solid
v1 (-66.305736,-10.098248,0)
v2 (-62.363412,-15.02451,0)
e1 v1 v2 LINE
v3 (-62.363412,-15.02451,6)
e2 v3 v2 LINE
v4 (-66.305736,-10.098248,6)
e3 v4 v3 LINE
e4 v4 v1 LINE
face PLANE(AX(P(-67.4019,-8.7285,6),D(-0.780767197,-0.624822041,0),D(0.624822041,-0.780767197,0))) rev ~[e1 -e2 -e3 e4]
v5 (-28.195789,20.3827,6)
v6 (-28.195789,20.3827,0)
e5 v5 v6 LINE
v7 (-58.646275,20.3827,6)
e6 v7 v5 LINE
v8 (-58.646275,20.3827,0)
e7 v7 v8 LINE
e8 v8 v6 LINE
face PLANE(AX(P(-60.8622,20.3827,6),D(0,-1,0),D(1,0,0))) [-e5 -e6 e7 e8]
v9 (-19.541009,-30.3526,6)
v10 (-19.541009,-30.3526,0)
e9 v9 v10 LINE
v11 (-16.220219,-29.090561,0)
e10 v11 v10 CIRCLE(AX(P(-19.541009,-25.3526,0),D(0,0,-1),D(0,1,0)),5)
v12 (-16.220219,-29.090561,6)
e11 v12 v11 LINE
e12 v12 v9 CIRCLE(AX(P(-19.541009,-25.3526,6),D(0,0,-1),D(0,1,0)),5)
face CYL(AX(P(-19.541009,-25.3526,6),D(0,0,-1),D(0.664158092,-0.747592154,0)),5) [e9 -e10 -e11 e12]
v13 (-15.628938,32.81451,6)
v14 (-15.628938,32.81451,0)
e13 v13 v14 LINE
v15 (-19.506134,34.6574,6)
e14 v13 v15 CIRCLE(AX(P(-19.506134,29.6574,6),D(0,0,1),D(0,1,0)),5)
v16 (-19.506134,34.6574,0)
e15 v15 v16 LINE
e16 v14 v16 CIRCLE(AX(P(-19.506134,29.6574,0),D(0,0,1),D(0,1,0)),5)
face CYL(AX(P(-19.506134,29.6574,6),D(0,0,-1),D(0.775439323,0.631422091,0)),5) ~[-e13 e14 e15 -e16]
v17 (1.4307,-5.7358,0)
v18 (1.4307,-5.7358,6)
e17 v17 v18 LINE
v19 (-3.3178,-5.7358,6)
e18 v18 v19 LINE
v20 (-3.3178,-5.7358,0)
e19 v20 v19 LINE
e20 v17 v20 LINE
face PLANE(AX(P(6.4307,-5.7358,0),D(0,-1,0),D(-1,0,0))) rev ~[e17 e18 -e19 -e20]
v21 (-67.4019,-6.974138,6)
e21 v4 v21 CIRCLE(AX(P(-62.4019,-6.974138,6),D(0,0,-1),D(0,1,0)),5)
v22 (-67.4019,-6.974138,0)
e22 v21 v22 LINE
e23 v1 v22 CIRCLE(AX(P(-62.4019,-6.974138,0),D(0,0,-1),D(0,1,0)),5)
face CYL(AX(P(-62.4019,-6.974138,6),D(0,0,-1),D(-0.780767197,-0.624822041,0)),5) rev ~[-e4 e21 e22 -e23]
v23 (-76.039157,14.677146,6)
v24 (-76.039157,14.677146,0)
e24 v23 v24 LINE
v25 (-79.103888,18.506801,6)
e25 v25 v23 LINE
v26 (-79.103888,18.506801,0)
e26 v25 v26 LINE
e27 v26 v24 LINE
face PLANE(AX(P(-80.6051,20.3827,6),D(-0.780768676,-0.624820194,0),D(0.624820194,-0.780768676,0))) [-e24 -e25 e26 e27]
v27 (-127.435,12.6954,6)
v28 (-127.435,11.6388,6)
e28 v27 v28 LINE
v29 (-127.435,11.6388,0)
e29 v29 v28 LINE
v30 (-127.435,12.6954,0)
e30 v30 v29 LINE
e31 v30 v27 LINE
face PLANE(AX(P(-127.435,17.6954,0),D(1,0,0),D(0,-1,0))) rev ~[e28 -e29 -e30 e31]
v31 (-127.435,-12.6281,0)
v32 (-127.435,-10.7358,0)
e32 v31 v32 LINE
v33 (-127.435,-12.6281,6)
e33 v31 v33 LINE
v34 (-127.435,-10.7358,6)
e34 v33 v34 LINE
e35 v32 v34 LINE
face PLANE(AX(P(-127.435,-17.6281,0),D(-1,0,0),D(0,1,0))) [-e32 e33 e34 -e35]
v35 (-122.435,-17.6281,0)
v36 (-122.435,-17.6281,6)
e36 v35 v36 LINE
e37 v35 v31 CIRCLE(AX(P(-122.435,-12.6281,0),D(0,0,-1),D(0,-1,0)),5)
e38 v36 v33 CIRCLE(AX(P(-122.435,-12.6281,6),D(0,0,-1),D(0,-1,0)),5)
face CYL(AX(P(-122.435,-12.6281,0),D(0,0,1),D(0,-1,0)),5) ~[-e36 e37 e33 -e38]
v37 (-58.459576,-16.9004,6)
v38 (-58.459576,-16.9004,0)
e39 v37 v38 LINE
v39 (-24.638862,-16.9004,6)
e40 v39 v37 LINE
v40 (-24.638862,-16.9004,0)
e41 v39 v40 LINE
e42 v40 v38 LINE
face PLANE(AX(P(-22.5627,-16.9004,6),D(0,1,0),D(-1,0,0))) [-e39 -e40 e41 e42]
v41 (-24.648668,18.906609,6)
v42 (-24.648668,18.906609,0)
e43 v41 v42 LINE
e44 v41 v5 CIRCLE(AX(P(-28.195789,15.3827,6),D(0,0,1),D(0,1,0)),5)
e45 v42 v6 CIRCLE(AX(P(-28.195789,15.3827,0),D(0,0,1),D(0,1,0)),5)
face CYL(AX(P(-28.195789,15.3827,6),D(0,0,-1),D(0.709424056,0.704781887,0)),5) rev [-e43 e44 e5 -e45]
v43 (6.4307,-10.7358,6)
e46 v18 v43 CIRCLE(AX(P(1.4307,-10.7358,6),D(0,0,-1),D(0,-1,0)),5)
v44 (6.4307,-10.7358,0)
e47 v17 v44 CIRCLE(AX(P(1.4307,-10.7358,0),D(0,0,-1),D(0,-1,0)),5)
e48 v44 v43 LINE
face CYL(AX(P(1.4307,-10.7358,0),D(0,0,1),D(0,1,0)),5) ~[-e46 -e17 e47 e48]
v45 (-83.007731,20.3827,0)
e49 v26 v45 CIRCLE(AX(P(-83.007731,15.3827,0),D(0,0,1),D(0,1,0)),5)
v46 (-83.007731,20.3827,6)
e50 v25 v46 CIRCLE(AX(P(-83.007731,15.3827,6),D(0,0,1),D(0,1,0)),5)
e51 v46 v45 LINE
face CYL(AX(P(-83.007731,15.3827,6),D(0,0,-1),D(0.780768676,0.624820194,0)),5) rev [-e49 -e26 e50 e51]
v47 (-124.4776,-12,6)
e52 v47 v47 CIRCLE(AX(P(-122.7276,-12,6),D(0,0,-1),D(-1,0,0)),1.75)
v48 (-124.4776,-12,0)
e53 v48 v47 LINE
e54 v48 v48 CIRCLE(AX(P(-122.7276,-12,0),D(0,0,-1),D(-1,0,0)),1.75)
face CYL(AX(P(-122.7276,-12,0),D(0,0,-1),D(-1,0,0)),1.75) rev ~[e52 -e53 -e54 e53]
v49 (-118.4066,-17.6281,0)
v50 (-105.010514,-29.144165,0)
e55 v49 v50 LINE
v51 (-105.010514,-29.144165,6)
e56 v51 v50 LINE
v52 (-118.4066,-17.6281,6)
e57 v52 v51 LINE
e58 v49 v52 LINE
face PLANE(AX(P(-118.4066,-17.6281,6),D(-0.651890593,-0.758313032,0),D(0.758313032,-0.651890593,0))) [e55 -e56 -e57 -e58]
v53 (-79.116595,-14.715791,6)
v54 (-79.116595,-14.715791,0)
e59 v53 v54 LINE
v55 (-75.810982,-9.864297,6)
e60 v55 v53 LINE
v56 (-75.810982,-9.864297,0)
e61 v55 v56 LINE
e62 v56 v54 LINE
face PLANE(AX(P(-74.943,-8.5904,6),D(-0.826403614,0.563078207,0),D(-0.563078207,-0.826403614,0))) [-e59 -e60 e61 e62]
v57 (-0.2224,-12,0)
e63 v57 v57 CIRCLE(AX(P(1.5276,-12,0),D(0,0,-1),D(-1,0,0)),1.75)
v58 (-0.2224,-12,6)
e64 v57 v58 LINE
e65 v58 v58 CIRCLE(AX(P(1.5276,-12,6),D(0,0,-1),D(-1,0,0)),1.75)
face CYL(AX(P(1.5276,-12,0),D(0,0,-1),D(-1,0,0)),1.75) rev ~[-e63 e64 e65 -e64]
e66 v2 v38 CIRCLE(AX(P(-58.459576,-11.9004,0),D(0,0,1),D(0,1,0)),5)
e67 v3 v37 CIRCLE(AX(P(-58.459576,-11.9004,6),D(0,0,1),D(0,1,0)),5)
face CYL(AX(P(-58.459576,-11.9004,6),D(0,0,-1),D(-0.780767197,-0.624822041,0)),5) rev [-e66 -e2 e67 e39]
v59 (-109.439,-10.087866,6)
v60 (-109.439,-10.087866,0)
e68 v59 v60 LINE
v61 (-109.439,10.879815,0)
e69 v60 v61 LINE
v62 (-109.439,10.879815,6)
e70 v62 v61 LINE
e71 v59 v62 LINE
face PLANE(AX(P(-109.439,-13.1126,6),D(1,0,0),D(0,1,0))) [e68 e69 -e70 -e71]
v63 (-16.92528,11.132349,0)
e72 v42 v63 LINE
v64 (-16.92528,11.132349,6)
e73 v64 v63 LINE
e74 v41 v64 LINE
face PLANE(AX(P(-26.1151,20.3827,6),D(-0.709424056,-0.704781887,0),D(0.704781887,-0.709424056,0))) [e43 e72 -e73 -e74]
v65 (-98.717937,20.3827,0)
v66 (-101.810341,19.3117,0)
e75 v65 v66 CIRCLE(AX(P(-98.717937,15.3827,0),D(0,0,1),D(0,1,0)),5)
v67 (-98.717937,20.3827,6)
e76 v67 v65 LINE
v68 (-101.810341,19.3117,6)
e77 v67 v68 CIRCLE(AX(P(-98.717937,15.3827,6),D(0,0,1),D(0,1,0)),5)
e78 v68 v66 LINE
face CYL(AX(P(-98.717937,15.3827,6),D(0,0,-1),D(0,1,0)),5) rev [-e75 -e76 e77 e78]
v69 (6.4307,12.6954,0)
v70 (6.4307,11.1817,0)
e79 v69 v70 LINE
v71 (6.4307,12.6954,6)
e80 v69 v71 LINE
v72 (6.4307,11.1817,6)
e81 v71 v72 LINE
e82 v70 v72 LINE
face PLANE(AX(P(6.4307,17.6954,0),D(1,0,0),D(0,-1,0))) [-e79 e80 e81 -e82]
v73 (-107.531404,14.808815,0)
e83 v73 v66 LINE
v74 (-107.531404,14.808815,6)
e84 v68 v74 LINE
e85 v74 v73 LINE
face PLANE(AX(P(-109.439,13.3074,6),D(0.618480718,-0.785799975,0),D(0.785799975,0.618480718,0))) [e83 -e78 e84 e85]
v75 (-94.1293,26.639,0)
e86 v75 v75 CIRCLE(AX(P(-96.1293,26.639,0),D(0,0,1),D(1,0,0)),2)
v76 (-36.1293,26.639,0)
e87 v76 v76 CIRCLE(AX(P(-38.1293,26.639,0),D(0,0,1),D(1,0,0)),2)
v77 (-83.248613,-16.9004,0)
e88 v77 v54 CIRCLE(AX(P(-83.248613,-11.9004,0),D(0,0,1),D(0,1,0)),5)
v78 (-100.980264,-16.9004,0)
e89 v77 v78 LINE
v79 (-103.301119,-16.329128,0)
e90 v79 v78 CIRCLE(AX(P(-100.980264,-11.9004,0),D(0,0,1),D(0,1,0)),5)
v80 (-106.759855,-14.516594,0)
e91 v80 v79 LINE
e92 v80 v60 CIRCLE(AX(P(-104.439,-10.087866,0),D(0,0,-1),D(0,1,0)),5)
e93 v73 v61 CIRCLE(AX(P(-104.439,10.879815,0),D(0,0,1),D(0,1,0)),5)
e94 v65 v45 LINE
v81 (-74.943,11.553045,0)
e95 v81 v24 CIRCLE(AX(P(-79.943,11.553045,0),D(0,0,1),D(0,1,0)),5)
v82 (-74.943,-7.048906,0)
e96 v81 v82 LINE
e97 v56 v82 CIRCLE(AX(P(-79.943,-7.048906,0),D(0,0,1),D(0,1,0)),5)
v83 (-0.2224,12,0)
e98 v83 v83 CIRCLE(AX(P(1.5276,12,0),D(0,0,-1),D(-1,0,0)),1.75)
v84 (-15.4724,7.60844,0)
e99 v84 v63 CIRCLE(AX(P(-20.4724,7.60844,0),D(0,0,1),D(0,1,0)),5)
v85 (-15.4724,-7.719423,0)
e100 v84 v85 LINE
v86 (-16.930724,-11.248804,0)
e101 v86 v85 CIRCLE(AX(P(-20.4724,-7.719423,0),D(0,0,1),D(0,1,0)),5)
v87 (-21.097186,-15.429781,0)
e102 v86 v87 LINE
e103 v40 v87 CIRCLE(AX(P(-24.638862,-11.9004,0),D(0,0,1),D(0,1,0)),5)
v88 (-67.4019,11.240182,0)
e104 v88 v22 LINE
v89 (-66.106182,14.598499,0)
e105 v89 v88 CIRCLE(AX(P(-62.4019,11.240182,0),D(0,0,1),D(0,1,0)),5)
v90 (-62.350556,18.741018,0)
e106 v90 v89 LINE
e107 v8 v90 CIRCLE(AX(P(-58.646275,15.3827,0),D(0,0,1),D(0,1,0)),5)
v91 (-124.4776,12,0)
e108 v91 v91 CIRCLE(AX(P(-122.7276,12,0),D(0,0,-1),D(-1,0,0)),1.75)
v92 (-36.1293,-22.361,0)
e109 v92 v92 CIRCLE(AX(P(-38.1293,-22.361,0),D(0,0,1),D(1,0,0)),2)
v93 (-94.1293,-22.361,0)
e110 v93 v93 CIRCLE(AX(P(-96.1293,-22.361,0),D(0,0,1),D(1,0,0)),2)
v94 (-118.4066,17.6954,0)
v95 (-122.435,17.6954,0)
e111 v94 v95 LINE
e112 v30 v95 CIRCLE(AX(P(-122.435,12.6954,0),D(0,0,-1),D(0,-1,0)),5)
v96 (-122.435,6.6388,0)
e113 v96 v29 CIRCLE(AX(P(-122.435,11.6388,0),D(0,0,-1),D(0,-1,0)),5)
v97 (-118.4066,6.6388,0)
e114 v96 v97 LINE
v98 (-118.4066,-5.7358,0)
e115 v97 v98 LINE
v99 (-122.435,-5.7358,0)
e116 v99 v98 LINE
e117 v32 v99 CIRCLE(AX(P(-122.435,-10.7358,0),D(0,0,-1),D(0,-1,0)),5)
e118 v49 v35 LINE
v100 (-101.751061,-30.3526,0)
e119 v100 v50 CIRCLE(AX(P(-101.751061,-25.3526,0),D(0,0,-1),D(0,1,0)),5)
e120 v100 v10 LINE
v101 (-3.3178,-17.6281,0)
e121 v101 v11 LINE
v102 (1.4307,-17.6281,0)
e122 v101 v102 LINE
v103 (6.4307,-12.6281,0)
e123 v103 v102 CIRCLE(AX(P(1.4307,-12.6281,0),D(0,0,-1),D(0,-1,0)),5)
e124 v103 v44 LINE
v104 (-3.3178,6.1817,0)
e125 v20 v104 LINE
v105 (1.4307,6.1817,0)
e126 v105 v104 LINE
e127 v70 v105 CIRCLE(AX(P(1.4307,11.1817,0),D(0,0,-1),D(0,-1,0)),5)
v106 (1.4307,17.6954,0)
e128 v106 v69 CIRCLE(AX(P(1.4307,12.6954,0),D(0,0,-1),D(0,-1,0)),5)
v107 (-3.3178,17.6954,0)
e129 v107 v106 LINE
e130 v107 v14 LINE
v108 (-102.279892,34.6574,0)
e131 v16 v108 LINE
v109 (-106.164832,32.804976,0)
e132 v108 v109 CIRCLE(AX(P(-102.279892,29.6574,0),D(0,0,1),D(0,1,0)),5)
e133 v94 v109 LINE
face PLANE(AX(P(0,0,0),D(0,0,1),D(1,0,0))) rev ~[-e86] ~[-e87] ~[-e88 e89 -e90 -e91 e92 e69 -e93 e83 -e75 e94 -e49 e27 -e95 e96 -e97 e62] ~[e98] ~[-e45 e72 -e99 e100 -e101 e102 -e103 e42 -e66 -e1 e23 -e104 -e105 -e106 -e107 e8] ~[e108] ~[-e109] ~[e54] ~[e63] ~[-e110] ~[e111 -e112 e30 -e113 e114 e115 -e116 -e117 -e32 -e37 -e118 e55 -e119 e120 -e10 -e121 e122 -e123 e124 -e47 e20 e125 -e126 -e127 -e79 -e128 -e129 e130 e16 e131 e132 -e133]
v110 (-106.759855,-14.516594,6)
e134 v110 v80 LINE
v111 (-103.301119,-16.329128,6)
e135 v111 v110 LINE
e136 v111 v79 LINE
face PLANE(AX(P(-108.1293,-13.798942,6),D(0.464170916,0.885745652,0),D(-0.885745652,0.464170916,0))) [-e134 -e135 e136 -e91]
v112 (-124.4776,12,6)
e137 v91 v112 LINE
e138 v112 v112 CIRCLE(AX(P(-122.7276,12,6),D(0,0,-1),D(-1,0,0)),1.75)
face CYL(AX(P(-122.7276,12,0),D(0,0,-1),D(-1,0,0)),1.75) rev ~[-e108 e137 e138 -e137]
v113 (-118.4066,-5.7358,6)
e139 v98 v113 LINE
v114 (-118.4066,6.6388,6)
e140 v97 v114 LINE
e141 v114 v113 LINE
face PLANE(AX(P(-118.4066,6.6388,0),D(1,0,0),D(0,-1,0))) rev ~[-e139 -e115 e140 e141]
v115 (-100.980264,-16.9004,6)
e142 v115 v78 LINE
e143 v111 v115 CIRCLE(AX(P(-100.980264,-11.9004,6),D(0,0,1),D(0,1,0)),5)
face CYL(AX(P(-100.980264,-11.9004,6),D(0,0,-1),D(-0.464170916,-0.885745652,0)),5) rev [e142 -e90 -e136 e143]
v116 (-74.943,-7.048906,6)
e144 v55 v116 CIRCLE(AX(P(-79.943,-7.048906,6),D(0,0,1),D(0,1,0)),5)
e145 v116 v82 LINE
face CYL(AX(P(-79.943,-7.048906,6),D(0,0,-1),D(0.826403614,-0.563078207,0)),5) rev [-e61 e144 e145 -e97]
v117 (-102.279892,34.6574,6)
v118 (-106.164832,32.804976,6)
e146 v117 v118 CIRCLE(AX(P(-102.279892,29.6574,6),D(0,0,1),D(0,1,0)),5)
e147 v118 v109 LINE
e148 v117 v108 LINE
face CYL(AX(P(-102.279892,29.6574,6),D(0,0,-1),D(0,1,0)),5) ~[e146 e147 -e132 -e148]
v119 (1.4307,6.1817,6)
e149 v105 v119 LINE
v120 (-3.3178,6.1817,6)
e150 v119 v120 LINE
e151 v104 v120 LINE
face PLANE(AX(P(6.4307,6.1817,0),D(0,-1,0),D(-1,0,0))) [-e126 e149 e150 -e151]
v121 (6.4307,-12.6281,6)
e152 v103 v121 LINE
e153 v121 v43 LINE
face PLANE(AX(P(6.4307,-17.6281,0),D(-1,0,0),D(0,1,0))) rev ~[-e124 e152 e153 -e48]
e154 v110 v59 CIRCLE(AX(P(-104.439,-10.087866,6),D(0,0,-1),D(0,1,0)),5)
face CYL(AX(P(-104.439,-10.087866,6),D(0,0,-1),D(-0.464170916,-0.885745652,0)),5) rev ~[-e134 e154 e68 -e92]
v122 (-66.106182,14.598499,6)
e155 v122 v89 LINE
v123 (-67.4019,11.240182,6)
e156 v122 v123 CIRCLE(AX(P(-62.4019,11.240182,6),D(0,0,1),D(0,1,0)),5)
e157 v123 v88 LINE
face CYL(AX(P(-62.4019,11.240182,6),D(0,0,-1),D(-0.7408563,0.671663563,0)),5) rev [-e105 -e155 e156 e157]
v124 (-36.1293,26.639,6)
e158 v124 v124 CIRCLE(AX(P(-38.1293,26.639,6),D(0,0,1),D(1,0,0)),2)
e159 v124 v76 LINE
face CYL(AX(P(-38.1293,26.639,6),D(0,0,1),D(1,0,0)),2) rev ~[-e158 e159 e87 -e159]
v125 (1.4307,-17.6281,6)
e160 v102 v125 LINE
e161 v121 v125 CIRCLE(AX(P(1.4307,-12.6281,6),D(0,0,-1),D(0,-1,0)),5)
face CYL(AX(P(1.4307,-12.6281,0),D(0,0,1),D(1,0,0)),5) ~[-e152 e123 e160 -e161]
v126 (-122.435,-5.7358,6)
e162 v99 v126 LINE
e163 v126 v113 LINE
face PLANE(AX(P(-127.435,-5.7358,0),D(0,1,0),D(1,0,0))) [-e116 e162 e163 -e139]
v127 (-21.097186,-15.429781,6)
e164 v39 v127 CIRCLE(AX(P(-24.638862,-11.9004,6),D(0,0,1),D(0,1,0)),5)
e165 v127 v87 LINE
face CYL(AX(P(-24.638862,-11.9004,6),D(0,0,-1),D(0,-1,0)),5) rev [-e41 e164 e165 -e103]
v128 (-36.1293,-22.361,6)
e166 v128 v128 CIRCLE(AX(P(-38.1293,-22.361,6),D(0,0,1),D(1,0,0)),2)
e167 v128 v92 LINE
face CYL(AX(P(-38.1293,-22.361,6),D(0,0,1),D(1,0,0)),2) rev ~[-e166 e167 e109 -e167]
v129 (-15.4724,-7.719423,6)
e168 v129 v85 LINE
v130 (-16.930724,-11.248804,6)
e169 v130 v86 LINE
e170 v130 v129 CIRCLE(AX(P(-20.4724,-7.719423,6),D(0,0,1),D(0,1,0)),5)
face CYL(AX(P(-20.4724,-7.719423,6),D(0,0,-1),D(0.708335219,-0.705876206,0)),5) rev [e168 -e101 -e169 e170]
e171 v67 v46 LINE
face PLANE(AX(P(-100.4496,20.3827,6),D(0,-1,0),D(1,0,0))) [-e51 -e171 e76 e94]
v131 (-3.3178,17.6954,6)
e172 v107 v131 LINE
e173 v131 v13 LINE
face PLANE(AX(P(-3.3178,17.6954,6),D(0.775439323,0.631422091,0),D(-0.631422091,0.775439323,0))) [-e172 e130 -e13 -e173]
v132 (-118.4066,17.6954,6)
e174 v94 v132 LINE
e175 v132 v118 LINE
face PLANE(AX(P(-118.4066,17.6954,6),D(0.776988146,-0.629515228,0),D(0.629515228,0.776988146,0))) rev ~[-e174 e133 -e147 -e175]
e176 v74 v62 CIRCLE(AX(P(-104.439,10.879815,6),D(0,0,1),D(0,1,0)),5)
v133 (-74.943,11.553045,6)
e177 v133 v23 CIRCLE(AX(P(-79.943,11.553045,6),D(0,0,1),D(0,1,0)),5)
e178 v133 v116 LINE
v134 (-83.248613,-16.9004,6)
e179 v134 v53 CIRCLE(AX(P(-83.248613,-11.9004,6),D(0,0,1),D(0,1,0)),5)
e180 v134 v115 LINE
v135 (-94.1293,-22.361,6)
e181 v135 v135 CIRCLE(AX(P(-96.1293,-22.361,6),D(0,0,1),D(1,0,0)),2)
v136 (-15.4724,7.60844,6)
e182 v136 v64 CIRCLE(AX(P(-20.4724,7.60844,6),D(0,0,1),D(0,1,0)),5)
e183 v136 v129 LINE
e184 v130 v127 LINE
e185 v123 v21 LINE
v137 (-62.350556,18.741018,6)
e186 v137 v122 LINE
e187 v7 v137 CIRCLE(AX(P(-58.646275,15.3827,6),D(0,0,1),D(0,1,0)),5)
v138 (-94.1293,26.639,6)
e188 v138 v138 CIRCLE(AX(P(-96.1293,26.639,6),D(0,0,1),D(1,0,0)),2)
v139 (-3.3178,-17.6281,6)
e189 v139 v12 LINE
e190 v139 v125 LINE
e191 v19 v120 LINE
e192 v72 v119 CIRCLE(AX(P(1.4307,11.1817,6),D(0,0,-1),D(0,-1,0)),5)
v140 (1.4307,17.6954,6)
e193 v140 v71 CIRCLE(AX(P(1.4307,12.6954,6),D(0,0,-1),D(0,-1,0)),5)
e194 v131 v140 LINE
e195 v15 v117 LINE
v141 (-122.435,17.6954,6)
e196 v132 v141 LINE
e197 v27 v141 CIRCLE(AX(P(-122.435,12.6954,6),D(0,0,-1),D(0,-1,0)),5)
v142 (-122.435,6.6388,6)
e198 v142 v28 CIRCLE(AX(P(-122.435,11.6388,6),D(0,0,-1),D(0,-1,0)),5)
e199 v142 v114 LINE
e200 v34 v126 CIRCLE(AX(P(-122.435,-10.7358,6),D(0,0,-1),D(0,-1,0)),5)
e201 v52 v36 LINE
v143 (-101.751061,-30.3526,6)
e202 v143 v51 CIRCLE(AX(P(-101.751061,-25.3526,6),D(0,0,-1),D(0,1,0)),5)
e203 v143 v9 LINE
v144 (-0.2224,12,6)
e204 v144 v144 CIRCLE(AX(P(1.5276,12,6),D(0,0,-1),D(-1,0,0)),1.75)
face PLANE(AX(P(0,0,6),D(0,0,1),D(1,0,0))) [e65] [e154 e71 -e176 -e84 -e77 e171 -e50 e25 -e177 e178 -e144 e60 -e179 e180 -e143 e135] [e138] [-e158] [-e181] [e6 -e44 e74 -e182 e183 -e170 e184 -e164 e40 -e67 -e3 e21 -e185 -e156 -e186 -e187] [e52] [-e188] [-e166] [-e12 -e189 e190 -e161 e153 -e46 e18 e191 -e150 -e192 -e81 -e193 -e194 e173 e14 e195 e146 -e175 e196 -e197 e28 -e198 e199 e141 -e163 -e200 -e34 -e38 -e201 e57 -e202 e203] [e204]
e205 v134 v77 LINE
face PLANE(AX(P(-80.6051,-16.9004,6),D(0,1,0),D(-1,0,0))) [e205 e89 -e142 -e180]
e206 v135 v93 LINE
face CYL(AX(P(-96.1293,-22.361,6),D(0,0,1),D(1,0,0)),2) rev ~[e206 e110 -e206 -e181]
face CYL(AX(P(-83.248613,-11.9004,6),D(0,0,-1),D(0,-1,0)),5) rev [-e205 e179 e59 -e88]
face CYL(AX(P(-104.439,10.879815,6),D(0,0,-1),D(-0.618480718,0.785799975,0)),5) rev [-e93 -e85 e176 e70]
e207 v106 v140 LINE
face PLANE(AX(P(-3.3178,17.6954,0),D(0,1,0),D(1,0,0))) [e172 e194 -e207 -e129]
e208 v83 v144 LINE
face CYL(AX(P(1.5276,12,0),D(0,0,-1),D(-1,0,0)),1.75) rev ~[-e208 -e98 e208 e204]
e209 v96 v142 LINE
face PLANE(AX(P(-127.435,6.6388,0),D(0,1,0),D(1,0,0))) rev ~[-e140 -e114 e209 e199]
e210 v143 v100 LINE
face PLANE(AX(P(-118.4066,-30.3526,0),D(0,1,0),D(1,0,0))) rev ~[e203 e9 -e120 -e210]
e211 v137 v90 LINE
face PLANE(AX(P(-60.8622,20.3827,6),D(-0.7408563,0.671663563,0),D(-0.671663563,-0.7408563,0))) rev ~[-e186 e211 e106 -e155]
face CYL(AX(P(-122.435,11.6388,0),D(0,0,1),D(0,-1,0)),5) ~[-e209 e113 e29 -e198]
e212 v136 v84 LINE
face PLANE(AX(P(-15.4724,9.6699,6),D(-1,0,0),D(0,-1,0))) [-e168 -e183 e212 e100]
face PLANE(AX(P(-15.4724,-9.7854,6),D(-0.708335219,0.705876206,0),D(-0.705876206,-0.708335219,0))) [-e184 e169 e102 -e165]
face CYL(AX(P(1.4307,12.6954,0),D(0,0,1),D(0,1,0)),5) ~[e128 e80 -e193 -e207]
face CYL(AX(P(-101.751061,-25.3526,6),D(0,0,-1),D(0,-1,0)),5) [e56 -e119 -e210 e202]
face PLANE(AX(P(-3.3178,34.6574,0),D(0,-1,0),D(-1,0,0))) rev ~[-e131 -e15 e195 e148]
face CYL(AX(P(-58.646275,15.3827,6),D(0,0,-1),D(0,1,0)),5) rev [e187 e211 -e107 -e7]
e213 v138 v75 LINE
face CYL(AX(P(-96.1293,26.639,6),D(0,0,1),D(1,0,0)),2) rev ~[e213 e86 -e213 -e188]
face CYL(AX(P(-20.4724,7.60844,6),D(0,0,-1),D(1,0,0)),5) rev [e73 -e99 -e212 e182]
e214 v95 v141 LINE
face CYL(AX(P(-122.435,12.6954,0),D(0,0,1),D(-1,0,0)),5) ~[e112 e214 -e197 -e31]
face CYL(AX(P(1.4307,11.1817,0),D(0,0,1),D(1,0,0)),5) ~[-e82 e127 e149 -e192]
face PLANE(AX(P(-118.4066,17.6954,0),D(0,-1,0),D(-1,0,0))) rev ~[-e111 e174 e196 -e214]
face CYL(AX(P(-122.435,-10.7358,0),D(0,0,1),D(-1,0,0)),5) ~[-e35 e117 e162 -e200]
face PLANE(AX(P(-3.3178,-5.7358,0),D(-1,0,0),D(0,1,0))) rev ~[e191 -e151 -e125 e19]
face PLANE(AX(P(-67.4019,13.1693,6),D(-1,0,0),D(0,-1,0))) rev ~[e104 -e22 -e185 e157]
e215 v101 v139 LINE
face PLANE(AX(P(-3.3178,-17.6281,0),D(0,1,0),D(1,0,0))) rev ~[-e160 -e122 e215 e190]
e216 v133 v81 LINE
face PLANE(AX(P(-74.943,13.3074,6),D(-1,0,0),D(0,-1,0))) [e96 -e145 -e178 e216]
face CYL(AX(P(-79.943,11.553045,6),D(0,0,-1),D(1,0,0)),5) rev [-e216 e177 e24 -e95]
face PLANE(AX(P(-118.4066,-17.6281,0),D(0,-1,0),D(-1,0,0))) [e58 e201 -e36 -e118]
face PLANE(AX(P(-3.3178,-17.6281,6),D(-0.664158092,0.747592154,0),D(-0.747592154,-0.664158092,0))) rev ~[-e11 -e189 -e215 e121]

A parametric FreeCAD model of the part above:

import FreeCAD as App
import Part
import Sketcher

V = App.Vector
Q = App.Units.Quantity


def edges_at(feature, points):
    """Names of the edges that pass closest to the given points."""
    edges = feature.Shape.Edges
    near = lambda p: min(range(len(edges)), key=lambda i: edges[i].distToShape(Part.Vertex(*p))[0])
    return sorted({f"Edge{near(p) + 1}" for p in points})

doc = App.newDocument("Part")
body = doc.addObject("PartDesign::Body", "Body")

# Sketch on XY plane
sketch1 = doc.addObject("Sketcher::SketchObject", "Sketch")
body.addObject(sketch1)
sketch1.AttachmentSupport = (doc.XY_Plane, [""])
sketch1.MapMode = "FlatFace"
sketch1.addGeometry(Part.LineSegment(V(-3, 18, 0), V(-3, 35, 0)), False)
sketch1.addGeometry(Part.LineSegment(V(-3, 35, 0), V(-118, 35, 0)), False)
sketch1.addGeometry(Part.LineSegment(V(-118, 35, 0), V(-118, 18, 0)), False)
sketch1.addGeometry(Part.LineSegment(V(-118, 18, 0), V(-127, 18, 0)), False)
sketch1.addGeometry(Part.LineSegment(V(-127, 18, 0), V(-127, 7, 0)), False)
sketch1.addGeometry(Part.LineSegment(V(-127, 7, 0), V(-118, 7, 0)), False)
sketch1.addGeometry(Part.LineSegment(V(-118, 7, 0), V(-118, -6, 0)), False)
sketch1.addGeometry(Part.LineSegment(V(-118, -6, 0), V(-127, -6, 0)), False)
sketch1.addGeometry(Part.LineSegment(V(-127, -6, 0), V(-127, -18, 0)), False)
sketch1.addGeometry(Part.LineSegment(V(-127, -18, 0), V(-118, -18, 0)), False)
sketch1.addGeometry(Part.LineSegment(V(-118, -18, 0), V(-118, -30, 0)), False)
sketch1.addGeometry(Part.LineSegment(V(-118, -30, 0), V(-3, -30, 0)), False)
sketch1.addGeometry(Part.LineSegment(V(-3, -30, 0), V(-3, -18, 0)), False)
sketch1.addGeometry(Part.LineSegment(V(-3, -18, 0), V(6, -18, 0)), False)
sketch1.addGeometry(Part.LineSegment(V(6, -18, 0), V(6, -6, 0)), False)
sketch1.addGeometry(Part.LineSegment(V(6, -6, 0), V(-3, -6, 0)), False)
sketch1.addGeometry(Part.LineSegment(V(-3, -6, 0), V(-3, 6, 0)), False)
sketch1.addGeometry(Part.LineSegment(V(-3, 6, 0), V(6, 6, 0)), False)
sketch1.addGeometry(Part.LineSegment(V(6, 6, 0), V(6, 18, 0)), False)
sketch1.addGeometry(Part.LineSegment(V(6, 18, 0), V(-3, 18, 0)), False)
sketch1.addConstraint(Sketcher.Constraint("Coincident", 0, 2, 1, 1))
sketch1.addConstraint(Sketcher.Constraint("Coincident", 1, 2, 2, 1))
sketch1.addConstraint(Sketcher.Constraint("Coincident", 2, 2, 3, 1))
sketch1.addConstraint(Sketcher.Constraint("Coincident", 3, 2, 4, 1))
sketch1.addConstraint(Sketcher.Constraint("Coincident", 4, 2, 5, 1))
sketch1.addConstraint(Sketcher.Constraint("Coincident", 5, 2, 6, 1))
sketch1.addConstraint(Sketcher.Constraint("Coincident", 6, 2, 7, 1))
sketch1.addConstraint(Sketcher.Constraint("Coincident", 7, 2, 8, 1))
sketch1.addConstraint(Sketcher.Constraint("Coincident", 8, 2, 9, 1))
sketch1.addConstraint(Sketcher.Constraint("Coincident", 9, 2, 10, 1))
sketch1.addConstraint(Sketcher.Constraint("Coincident", 10, 2, 11, 1))
sketch1.addConstraint(Sketcher.Constraint("Coincident", 11, 2, 12, 1))
sketch1.addConstraint(Sketcher.Constraint("Coincident", 12, 2, 13, 1))
sketch1.addConstraint(Sketcher.Constraint("Coincident", 13, 2, 14, 1))
sketch1.addConstraint(Sketcher.Constraint("Coincident", 14, 2, 15, 1))
sketch1.addConstraint(Sketcher.Constraint("Coincident", 15, 2, 16, 1))
sketch1.addConstraint(Sketcher.Constraint("Coincident", 16, 2, 17, 1))
sketch1.addConstraint(Sketcher.Constraint("Coincident", 17, 2, 18, 1))
sketch1.addConstraint(Sketcher.Constraint("Coincident", 18, 2, 19, 1))
sketch1.addConstraint(Sketcher.Constraint("Coincident", 19, 2, 0, 1))
sketch1.addConstraint(Sketcher.Constraint("Vertical", 0))
sketch1.addConstraint(Sketcher.Constraint("Horizontal", 1))
sketch1.addConstraint(Sketcher.Constraint("Vertical", 2))
sketch1.addConstraint(Sketcher.Constraint("Horizontal", 3))
sketch1.addConstraint(Sketcher.Constraint("Vertical", 4))
sketch1.addConstraint(Sketcher.Constraint("Horizontal", 5))
sketch1.addConstraint(Sketcher.Constraint("Vertical", 6))
sketch1.addConstraint(Sketcher.Constraint("Horizontal", 7))
sketch1.addConstraint(Sketcher.Constraint("Vertical", 8))
sketch1.addConstraint(Sketcher.Constraint("Horizontal", 9))
sketch1.addConstraint(Sketcher.Constraint("Vertical", 10))
sketch1.addConstraint(Sketcher.Constraint("Horizontal", 11))
sketch1.addConstraint(Sketcher.Constraint("Vertical", 12))
sketch1.addConstraint(Sketcher.Constraint("Horizontal", 13))
sketch1.addConstraint(Sketcher.Constraint("Vertical", 14))
sketch1.addConstraint(Sketcher.Constraint("Horizontal", 15))
sketch1.addConstraint(Sketcher.Constraint("Vertical", 16))
sketch1.addConstraint(Sketcher.Constraint("Horizontal", 17))
sketch1.addConstraint(Sketcher.Constraint("Vertical", 18))
sketch1.addConstraint(Sketcher.Constraint("Horizontal", 19))
sketch1.addConstraint(Sketcher.Constraint("Horizontal", 9, 2, 12, 2))
sketch1.addConstraint(Sketcher.Constraint("Horizontal", 7, 2, 14, 2))
sketch1.addConstraint(Sketcher.Constraint("Horizontal", 3, 2, 18, 2))
sketch1.addConstraint(Sketcher.Constraint("Vertical", 2, 2, 5, 2))
sketch1.addConstraint(Sketcher.Constraint("Vertical", 4, 2, 7, 2))
sketch1.addConstraint(Sketcher.Constraint("Vertical", 6, 2, 9, 2))
sketch1.addConstraint(Sketcher.Constraint("Vertical", 0, 2, 11, 2))
sketch1.addConstraint(Sketcher.Constraint("Vertical", 12, 2, 15, 2))
sketch1.addConstraint(Sketcher.Constraint("Vertical", 14, 2, 17, 2))
sketch1.addConstraint(Sketcher.Constraint("DistanceY", 0, 1, 0, 2, 16.962))
sketch1.addConstraint(Sketcher.Constraint("DistanceY", 11, 2, 0, 2, 65.01))
sketch1.addConstraint(Sketcher.Constraint("DistanceX", 1, 2, 1, 1, 115.0888))
sketch1.addConstraint(Sketcher.Constraint("DistanceX", 3, 2, 3, 1, 9.0284))
sketch1.addConstraint(Sketcher.Constraint("DistanceX", 13, 1, 13, 2, 9.7485))
sketch1.addConstraint(Sketcher.Constraint("DistanceY", 4, 2, 4, 1, 11.0566))
sketch1.addConstraint(Sketcher.Constraint("DistanceY", 6, 2, 6, 1, 12.3746))
sketch1.addConstraint(Sketcher.Constraint("DistanceY", 8, 2, 8, 1, 11.8923))
sketch1.addConstraint(Sketcher.Constraint("DistanceY", 16, 1, 16, 2, 11.9175))
sketch1.addConstraint(Sketcher.Constraint("DistanceX", 3, 2, -1, 1, 127.435))
sketch1.addConstraint(Sketcher.Constraint("DistanceY", 8, 2, -1, 1, 17.628))
pad1 = doc.addObject("PartDesign::Pad", "Pad")
body.addObject(pad1)
pad1.Profile = sketch1
pad1.Length = 6

# Sketch on XY plane
sketch2 = doc.addObject("Sketcher::SketchObject", "Sketch001")
body.addObject(sketch2)
sketch2.AttachmentSupport = (doc.XY_Plane, [""])
sketch2.MapMode = "FlatFace"
sketch2.AttachmentOffset = App.Placement(V(0, 0, 6), App.Rotation())
sketch2.addGeometry(Part.Circle(V(-38.1, 26.6, 0), V(0, 0, 1), 2), False)
sketch2.addGeometry(Part.Circle(V(-38.1, -22.4, 0), V(0, 0, 1), 2), False)
sketch2.addGeometry(Part.Circle(V(-96.1, -22.4, 0), V(0, 0, 1), 2), False)
sketch2.addGeometry(Part.Circle(V(-96.1, 26.6, 0), V(0, 0, 1), 2), False)
sketch2.addConstraint(Sketcher.Constraint("Equal", 0, 1))
sketch2.addConstraint(Sketcher.Constraint("Equal", 1, 2))
sketch2.addConstraint(Sketcher.Constraint("Equal", 2, 3))
sketch2.addConstraint(Sketcher.Constraint("Horizontal", 1, 3, 2, 3))
sketch2.addConstraint(Sketcher.Constraint("Horizontal", 0, 3, 3, 3))
sketch2.addConstraint(Sketcher.Constraint("Vertical", 0, 3, 1, 3))
sketch2.addConstraint(Sketcher.Constraint("Vertical", 2, 3, 3, 3))
sketch2.addConstraint(Sketcher.Constraint("Diameter", 0, 4.0))
sketch2.addConstraint(Sketcher.Constraint("DistanceY", 1, 3, 0, 3, 49.0))
sketch2.addConstraint(Sketcher.Constraint("DistanceX", 2, 3, 1, 3, 58.0))
sketch2.addConstraint(Sketcher.Constraint("DistanceY", -1, 1, 0, 3, 26.639))
sketch2.addConstraint(Sketcher.Constraint("DistanceX", 0, 3, -1, 1, 38.1293))
pocket1 = doc.addObject("PartDesign::Pocket", "Pocket")
body.addObject(pocket1)
pocket1.Profile = sketch2
pocket1.Length = 6

# Sketch on XY plane
sketch3 = doc.addObject("Sketcher::SketchObject", "Sketch002")
body.addObject(sketch3)
sketch3.AttachmentSupport = (doc.XY_Plane, [""])
sketch3.MapMode = "FlatFace"
sketch3.addGeometry(Part.Circle(V(1.5, 12, 0), V(0, 0, 1), 1.8), False)
sketch3.addGeometry(Part.Circle(V(1.5, -12, 0), V(0, 0, 1), 1.8), False)
sketch3.addGeometry(Part.Circle(V(-122.7, -12, 0), V(0, 0, 1), 1.8), False)
sketch3.addGeometry(Part.Circle(V(-122.7, 12, 0), V(0, 0, 1), 1.8), False)
sketch3.addConstraint(Sketcher.Constraint("Equal", 0, 1))
sketch3.addConstraint(Sketcher.Constraint("Equal", 1, 2))
sketch3.addConstraint(Sketcher.Constraint("Equal", 2, 3))
sketch3.addConstraint(Sketcher.Constraint("Symmetric", 0, 3, 1, 3, -1))
sketch3.addConstraint(Sketcher.Constraint("Symmetric", 2, 3, 3, 3, -1))
sketch3.addConstraint(Sketcher.Constraint("Horizontal", 1, 3, 2, 3))
sketch3.addConstraint(Sketcher.Constraint("Diameter", 0, 3.5))
sketch3.addConstraint(Sketcher.Constraint("DistanceY", -1, 1, 0, 3, 12.0))
sketch3.addConstraint(Sketcher.Constraint("DistanceX", -1, 1, 0, 3, 1.5276))
sketch3.addConstraint(Sketcher.Constraint("DistanceX", 2, 3, -1, 1, 122.7276))
pocket2 = doc.addObject("PartDesign::Pocket", "Pocket001")
body.addObject(pocket2)
pocket2.Profile = sketch3
pocket2.Length = 6
pocket2.Reversed = True

# Sketch on XY plane
sketch4 = doc.addObject("Sketcher::SketchObject", "Sketch003")
body.addObject(sketch4)
sketch4.AttachmentSupport = (doc.XY_Plane, [""])
sketch4.MapMode = "FlatFace"
sketch4.AttachmentOffset = App.Placement(V(0, 0, 6), App.Rotation())
sketch4.addGeometry(Part.LineSegment(V(-3, -18, 0), V(-18, -30, 0)), False)
sketch4.addGeometry(Part.LineSegment(V(-18, -30, 0), V(-3, -30, 0)), False)
sketch4.addGeometry(Part.LineSegment(V(-3, -30, 0), V(-3, -18, 0)), False)
sketch4.addGeometry(Part.LineSegment(V(-118, -30, 0), V(-104, -30, 0)), False)
sketch4.addGeometry(Part.LineSegment(V(-104, -30, 0), V(-118, -18, 0)), False)
sketch4.addGeometry(Part.LineSegment(V(-118, -18, 0), V(-118, -30, 0)), False)
sketch4.addGeometry(Part.LineSegment(V(-109, -13, 0), V(-102, -17, 0)), False)
sketch4.addGeometry(Part.LineSegment(V(-102, -17, 0), V(-81, -17, 0)), False)
sketch4.addGeometry(Part.LineSegment(V(-81, -17, 0), V(-75, -9, 0)), False)
sketch4.addGeometry(Part.LineSegment(V(-75, -9, 0), V(-75, 13, 0)), False)
sketch4.addGeometry(Part.LineSegment(V(-75, 13, 0), V(-81, 20, 0)), False)
sketch4.addGeometry(Part.LineSegment(V(-81, 20, 0), V(-100, 20, 0)), False)
sketch4.addGeometry(Part.LineSegment(V(-100, 20, 0), V(-109, 13, 0)), False)
sketch4.addGeometry(Part.LineSegment(V(-109, 13, 0), V(-109, -13, 0)), False)
sketch4.addGeometry(Part.LineSegment(V(-67, -9, 0), V(-61, -17, 0)), False)
sketch4.addGeometry(Part.LineSegment(V(-61, -17, 0), V(-23, -17, 0)), False)
sketch4.addGeometry(Part.LineSegment(V(-23, -17, 0), V(-15, -10, 0)), False)
sketch4.addGeometry(Part.LineSegment(V(-15, -10, 0), V(-15, 10, 0)), False)
sketch4.addGeometry(Part.LineSegment(V(-15, 10, 0), V(-26, 20, 0)), False)
sketch4.addGeometry(Part.LineSegment(V(-26, 20, 0), V(-61, 20, 0)), False)
sketch4.addGeometry(Part.LineSegment(V(-61, 20, 0), V(-67, 13, 0)), False)
sketch4.addGeometry(Part.LineSegment(V(-67, 13, 0), V(-67, -9, 0)), False)
sketch4.addGeometry(Part.LineSegment(V(-105, 35, 0), V(-118, 35, 0)), False)
sketch4.addGeometry(Part.LineSegment(V(-118, 35, 0), V(-118, 18, 0)), False)
sketch4.addGeometry(Part.LineSegment(V(-118, 18, 0), V(-105, 35, 0)), False)
sketch4.addGeometry(Part.LineSegment(V(-3, 35, 0), V(-17, 35, 0)), False)
sketch4.addGeometry(Part.LineSegment(V(-17, 35, 0), V(-3, 18, 0)), False)
sketch4.addGeometry(Part.LineSegment(V(-3, 18, 0), V(-3, 35, 0)), False)
sketch4.addConstraint(Sketcher.Constraint("Coincident", 0, 2, 1, 1))
sketch4.addConstraint(Sketcher.Constraint("Coincident", 1, 2, 2, 1))
sketch4.addConstraint(Sketcher.Constraint("Coincident", 2, 2, 0, 1))
sketch4.addConstraint(Sketcher.Constraint("Coincident", 3, 2, 4, 1))
sketch4.addConstraint(Sketcher.Constraint("Coincident", 4, 2, 5, 1))
sketch4.addConstraint(Sketcher.Constraint("Coincident", 5, 2, 3, 1))
sketch4.addConstraint(Sketcher.Constraint("Coincident", 6, 2, 7, 1))
sketch4.addConstraint(Sketcher.Constraint("Coincident", 7, 2, 8, 1))
sketch4.addConstraint(Sketcher.Constraint("Coincident", 8, 2, 9, 1))
sketch4.addConstraint(Sketcher.Constraint("Coincident", 9, 2, 10, 1))
sketch4.addConstraint(Sketcher.Constraint("Coincident", 10, 2, 11, 1))
sketch4.addConstraint(Sketcher.Constraint("Coincident", 11, 2, 12, 1))
sketch4.addConstraint(Sketcher.Constraint("Coincident", 12, 2, 13, 1))
sketch4.addConstraint(Sketcher.Constraint("Coincident", 13, 2, 6, 1))
sketch4.addConstraint(Sketcher.Constraint("Coincident", 14, 2, 15, 1))
sketch4.addConstraint(Sketcher.Constraint("Coincident", 15, 2, 16, 1))
sketch4.addConstraint(Sketcher.Constraint("Coincident", 16, 2, 17, 1))
sketch4.addConstraint(Sketcher.Constraint("Coincident", 17, 2, 18, 1))
sketch4.addConstraint(Sketcher.Constraint("Coincident", 18, 2, 19, 1))
sketch4.addConstraint(Sketcher.Constraint("Coincident", 19, 2, 20, 1))
sketch4.addConstraint(Sketcher.Constraint("Coincident", 20, 2, 21, 1))
sketch4.addConstraint(Sketcher.Constraint("Coincident", 21, 2, 14, 1))
sketch4.addConstraint(Sketcher.Constraint("Coincident", 22, 2, 23, 1))
sketch4.addConstraint(Sketcher.Constraint("Coincident", 23, 2, 24, 1))
sketch4.addConstraint(Sketcher.Constraint("Coincident", 24, 2, 22, 1))
sketch4.addConstraint(Sketcher.Constraint("Coincident", 25, 2, 26, 1))
sketch4.addConstraint(Sketcher.Constraint("Coincident", 26, 2, 27, 1))
sketch4.addConstraint(Sketcher.Constraint("Coincident", 27, 2, 25, 1))
sketch4.addConstraint(Sketcher.Constraint("Horizontal", 1))
sketch4.addConstraint(Sketcher.Constraint("Vertical", 2))
sketch4.addConstraint(Sketcher.Constraint("Horizontal", 3))
sketch4.addConstraint(Sketcher.Constraint("Vertical", 5))
sketch4.addConstraint(Sketcher.Constraint("Horizontal", 7))
sketch4.addConstraint(Sketcher.Constraint("Vertical", 9))
sketch4.addConstraint(Sketcher.Constraint("Horizontal", 11))
sketch4.addConstraint(Sketcher.Constraint("Vertical", 13))
sketch4.addConstraint(Sketcher.Constraint("Horizontal", 15))
sketch4.addConstraint(Sketcher.Constraint("Vertical", 17))
sketch4.addConstraint(Sketcher.Constraint("Horizontal", 19))
sketch4.addConstraint(Sketcher.Constraint("Vertical", 21))
sketch4.addConstraint(Sketcher.Constraint("Horizontal", 22))
sketch4.addConstraint(Sketcher.Constraint("Vertical", 23))
sketch4.addConstraint(Sketcher.Constraint("Horizontal", 25))
sketch4.addConstraint(Sketcher.Constraint("Vertical", 27))
sketch4.addConstraint(Sketcher.Constraint("Parallel", 10, 14))
sketch4.addConstraint(Sketcher.Constraint("Horizontal", 1, 2, 3, 2))
sketch4.addConstraint(Sketcher.Constraint("Horizontal", 2, 2, 4, 2))
sketch4.addConstraint(Sketcher.Constraint("Horizontal", 9, 2, 12, 2))
sketch4.addConstraint(Sketcher.Constraint("Horizontal", 7, 2, 14, 2))
sketch4.addConstraint(Sketcher.Constraint("Horizontal", 11, 2, 18, 2))
sketch4.addConstraint(Sketcher.Constraint("Horizontal", 24, 2, 25, 2))
sketch4.addConstraint(Sketcher.Constraint("Horizontal", 23, 2, 26, 2))
sketch4.addConstraint(Sketcher.Constraint("Vertical", 7, 2, 10, 2))
sketch4.addConstraint(Sketcher.Constraint("Vertical", 14, 2, 19, 2))
sketch4.addConstraint(Sketcher.Constraint("Vertical", 5, 2, 22, 2))
sketch4.addConstraint(Sketcher.Constraint("Vertical", 2, 2, 26, 2))
sketch4.addConstraint(Sketcher.Constraint("Equal", 9, 21))
sketch4.addConstraint(Sketcher.Constraint("Angle", 16, Q("45.0996 deg")))
sketch4.addConstraint(Sketcher.Constraint("DistanceY", 13, 2, 13, 1, 26.42))
sketch4.addConstraint(Sketcher.Constraint("Angle", 8, Q("55.731 deg")))
sketch4.addConstraint(Sketcher.Constraint("Angle", 10, Q("128.669 deg")))
sketch4.addConstraint(Sketcher.Constraint("DistanceX", 1, 1, 1, 2, 14.323))
sketch4.addConstraint(Sketcher.Constraint("DistanceX", 7, 1, 7, 2, 21.606))
sketch4.addConstraint(Sketcher.Constraint("DistanceX", 19, 2, 19, 1, 34.747))
sketch4.addConstraint(Sketcher.Constraint("DistanceY", 23, 2, 23, 1, 16.962))
sketch4.addConstraint(Sketcher.Constraint("DistanceY", -1, 1, 17, 2, 9.67))
sketch4.addConstraint(Sketcher.Constraint("DistanceY", 7, 2, 8, 2, 8.31))
sketch4.addConstraint(Sketcher.Constraint("DistanceY", 3, 2, 9, 2, 43.66))
sketch4.addConstraint(Sketcher.Constraint("DistanceY", 12, 2, 22, 2, 21.35))
sketch4.addConstraint(Sketcher.Constraint("Distance", 26, 21.874))
sketch4.addConstraint(Sketcher.Constraint("DistanceX", 3, 1, 3, 2, 14.8018))
sketch4.addConstraint(Sketcher.Constraint("DistanceX", 11, 2, 11, 1, 19.8445))
sketch4.addConstraint(Sketcher.Constraint("DistanceX", 15, 1, 15, 2, 38.2995))
sketch4.addConstraint(Sketcher.Constraint("DistanceX", 22, 2, 22, 1, 13.7426))
sketch4.addConstraint(Sketcher.Constraint("DistanceY", 2, 1, 2, 2, 12.7245))
sketch4.addConstraint(Sketcher.Constraint("DistanceY", 9, 1, 9, 2, 21.8978))
sketch4.addConstraint(Sketcher.Constraint("DistanceY", 17, 1, 17, 2, 19.4553))
sketch4.addConstraint(Sketcher.Constraint("DistanceY", 2, 2, -1, 1, 17.628))
sketch4.addConstraint(Sketcher.Constraint("DistanceX", 6, 2, -1, 1, 102.211))
sketch4.addConstraint(Sketcher.Constraint("DistanceX", 12, 2, -1, 1, 109.439))
sketch4.addConstraint(Sketcher.Constraint("DistanceX", 18, 2, -1, 1, 26.115))
sketch4.addConstraint(Sketcher.Constraint("DistanceX", 20, 2, -1, 1, 67.402))
sketch4.addConstraint(Sketcher.Constraint("DistanceX", 24, 2, -1, 1, 104.664))
sketch4.addConstraint(Sketcher.Constraint("DistanceX", 3, 2, 0, 2, 85.964))
pocket3 = doc.addObject("PartDesign::Pocket", "Pocket002")
body.addObject(pocket3)
pocket3.Profile = sketch4
pocket3.Length = 6
doc.recompute()

fillet = doc.addObject("PartDesign::Fillet", "Fillet")
body.addObject(fillet)
fillet.Base = (pocket3, edges_at(pocket3, [
    (-127.435, 17.695, 3),
    (-127.435, 6.639, 3),
    (-127.435, -5.736, 3),
    (-127.435, -17.628, 3),
    (-104.664, 34.657, 3),
    (-17.13, 34.657, 3),
    (6.431, 17.695, 3),
    (6.431, 6.182, 3),
    (6.431, -5.736, 3),
    (6.431, -17.628, 3),
    (-17.641, -30.353, 3),
    (-103.605, -30.353, 3),
    (-80.605, 20.383, 3),
    (-74.943, 13.307, 3),
    (-26.115, 20.383, 3),
    (-15.472, 9.67, 3),
    (-15.472, -9.785, 3),
    (-22.563, -16.9, 3),
    (-60.862, 20.383, 3),
    (-67.402, 13.169, 3),
    (-67.402, -8.729, 3),
    (-60.862, -16.9, 3),
    (-109.439, -13.113, 3),
    (-102.211, -16.9, 3),
    (-100.45, 20.383, 3),
    (-109.439, 13.307, 3),
    (-74.943, -8.59, 3),
    (-80.605, -16.9, 3),
]))
fillet.Radius = 5

doc.recompute()
